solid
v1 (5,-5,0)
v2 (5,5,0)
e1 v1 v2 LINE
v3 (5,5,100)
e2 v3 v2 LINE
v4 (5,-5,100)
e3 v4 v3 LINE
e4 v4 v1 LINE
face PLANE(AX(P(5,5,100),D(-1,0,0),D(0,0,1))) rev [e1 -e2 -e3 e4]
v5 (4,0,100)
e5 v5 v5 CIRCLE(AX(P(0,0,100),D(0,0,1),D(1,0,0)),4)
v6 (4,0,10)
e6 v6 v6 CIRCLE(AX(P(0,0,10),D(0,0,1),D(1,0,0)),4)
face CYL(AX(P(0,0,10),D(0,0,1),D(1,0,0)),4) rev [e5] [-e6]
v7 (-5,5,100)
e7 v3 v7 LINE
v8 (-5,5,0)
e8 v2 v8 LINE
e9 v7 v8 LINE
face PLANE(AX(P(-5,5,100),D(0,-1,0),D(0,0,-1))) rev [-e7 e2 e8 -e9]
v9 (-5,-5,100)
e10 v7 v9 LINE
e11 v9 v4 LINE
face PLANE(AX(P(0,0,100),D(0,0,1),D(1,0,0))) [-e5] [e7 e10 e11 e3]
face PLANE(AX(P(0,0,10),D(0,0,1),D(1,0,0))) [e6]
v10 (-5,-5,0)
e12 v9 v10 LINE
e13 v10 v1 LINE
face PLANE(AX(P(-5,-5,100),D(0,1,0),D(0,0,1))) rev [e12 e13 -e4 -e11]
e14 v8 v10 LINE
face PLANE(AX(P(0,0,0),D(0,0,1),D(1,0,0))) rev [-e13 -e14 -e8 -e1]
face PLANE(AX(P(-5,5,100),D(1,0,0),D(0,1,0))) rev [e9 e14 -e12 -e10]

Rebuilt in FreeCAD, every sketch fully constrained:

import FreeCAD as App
import Part
import Sketcher
Q = App.Units.Quantity


def add_polygon(sketch, points):
    """Adds a closed chain of lines whose ends are joined by coincident constraints."""
    first, n = sketch.GeometryCount, len(points)
    for a, b in zip(points, points[1:] + points[:1]):
        sketch.addGeometry(Part.LineSegment(App.Vector(*a, 0), App.Vector(*b, 0)), False)
    for i in range(n):
        sketch.addConstraint(Sketcher.Constraint("Coincident", first + i, 2, first + (i + 1) % n, 1))

doc = App.newDocument("Part")
params = doc.addObject("Spreadsheet::Sheet", "Params")
for row, (alias, value) in enumerate([
    ("sketch1_width", "10 mm"),
    ("pad1_length", "100 mm"),
    ("sketch2_diameter", "8 mm"),
    ("pocket1_length", "90 mm"),
], start=1):
    params.set(f"A{row}", alias)
    params.set(f"B{row}", "=" + value)
    params.setAlias(f"B{row}", alias)

body = doc.addObject("PartDesign::Body", "Body")

sketch1 = body.newObject("Sketcher::SketchObject", "Sketch")
sketch1.AttachmentSupport = (doc.getObject("XY_Plane"), [""])
sketch1.MapMode = "FlatFace"
add_polygon(sketch1, [(-5, 5), (-5, -5), (5, -5), (5, 5)])
sketch1.addConstraint([
    Sketcher.Constraint("Vertical", 0),
    Sketcher.Constraint("Horizontal", 1),
    Sketcher.Constraint("Vertical", 2),
    Sketcher.Constraint("Horizontal", 3),
    Sketcher.Constraint("Symmetric", 0, 2, 2, 2, -1, 1),
    Sketcher.Constraint("Equal", 3, 0),
    Sketcher.Constraint("DistanceX", 1, 1, 1, 2, Q("10 mm")),
])
sketch1.setExpression("Constraints[10]", "Params.sketch1_width")
pad1 = body.newObject("PartDesign::Pad", "Pad")
pad1.Profile = sketch1
pad1.setExpression("Length", "Params.pad1_length")

sketch2 = body.newObject("Sketcher::SketchObject", "Sketch001")
sketch2.AttachmentSupport = (doc.getObject("XY_Plane"), [""])
sketch2.MapMode = "FlatFace"
sketch2.AttachmentOffset = App.Placement(App.Vector(0, 0, 100), App.Rotation())
sketch2.addGeometry(Part.Circle(App.Vector(0, 0, 0), App.Vector(0, 0, 1), 4), False)
sketch2.addConstraint([
    Sketcher.Constraint("Coincident", 0, 3, -1, 1),
    Sketcher.Constraint("Diameter", 0, Q("8 mm")),
])
sketch2.setExpression("Constraints[1]", "Params.sketch2_diameter")
pocket1 = body.newObject("PartDesign::Pocket", "Pocket")
pocket1.Profile = sketch2
pocket1.setExpression("Length", "Params.pocket1_length")

doc.recompute()
